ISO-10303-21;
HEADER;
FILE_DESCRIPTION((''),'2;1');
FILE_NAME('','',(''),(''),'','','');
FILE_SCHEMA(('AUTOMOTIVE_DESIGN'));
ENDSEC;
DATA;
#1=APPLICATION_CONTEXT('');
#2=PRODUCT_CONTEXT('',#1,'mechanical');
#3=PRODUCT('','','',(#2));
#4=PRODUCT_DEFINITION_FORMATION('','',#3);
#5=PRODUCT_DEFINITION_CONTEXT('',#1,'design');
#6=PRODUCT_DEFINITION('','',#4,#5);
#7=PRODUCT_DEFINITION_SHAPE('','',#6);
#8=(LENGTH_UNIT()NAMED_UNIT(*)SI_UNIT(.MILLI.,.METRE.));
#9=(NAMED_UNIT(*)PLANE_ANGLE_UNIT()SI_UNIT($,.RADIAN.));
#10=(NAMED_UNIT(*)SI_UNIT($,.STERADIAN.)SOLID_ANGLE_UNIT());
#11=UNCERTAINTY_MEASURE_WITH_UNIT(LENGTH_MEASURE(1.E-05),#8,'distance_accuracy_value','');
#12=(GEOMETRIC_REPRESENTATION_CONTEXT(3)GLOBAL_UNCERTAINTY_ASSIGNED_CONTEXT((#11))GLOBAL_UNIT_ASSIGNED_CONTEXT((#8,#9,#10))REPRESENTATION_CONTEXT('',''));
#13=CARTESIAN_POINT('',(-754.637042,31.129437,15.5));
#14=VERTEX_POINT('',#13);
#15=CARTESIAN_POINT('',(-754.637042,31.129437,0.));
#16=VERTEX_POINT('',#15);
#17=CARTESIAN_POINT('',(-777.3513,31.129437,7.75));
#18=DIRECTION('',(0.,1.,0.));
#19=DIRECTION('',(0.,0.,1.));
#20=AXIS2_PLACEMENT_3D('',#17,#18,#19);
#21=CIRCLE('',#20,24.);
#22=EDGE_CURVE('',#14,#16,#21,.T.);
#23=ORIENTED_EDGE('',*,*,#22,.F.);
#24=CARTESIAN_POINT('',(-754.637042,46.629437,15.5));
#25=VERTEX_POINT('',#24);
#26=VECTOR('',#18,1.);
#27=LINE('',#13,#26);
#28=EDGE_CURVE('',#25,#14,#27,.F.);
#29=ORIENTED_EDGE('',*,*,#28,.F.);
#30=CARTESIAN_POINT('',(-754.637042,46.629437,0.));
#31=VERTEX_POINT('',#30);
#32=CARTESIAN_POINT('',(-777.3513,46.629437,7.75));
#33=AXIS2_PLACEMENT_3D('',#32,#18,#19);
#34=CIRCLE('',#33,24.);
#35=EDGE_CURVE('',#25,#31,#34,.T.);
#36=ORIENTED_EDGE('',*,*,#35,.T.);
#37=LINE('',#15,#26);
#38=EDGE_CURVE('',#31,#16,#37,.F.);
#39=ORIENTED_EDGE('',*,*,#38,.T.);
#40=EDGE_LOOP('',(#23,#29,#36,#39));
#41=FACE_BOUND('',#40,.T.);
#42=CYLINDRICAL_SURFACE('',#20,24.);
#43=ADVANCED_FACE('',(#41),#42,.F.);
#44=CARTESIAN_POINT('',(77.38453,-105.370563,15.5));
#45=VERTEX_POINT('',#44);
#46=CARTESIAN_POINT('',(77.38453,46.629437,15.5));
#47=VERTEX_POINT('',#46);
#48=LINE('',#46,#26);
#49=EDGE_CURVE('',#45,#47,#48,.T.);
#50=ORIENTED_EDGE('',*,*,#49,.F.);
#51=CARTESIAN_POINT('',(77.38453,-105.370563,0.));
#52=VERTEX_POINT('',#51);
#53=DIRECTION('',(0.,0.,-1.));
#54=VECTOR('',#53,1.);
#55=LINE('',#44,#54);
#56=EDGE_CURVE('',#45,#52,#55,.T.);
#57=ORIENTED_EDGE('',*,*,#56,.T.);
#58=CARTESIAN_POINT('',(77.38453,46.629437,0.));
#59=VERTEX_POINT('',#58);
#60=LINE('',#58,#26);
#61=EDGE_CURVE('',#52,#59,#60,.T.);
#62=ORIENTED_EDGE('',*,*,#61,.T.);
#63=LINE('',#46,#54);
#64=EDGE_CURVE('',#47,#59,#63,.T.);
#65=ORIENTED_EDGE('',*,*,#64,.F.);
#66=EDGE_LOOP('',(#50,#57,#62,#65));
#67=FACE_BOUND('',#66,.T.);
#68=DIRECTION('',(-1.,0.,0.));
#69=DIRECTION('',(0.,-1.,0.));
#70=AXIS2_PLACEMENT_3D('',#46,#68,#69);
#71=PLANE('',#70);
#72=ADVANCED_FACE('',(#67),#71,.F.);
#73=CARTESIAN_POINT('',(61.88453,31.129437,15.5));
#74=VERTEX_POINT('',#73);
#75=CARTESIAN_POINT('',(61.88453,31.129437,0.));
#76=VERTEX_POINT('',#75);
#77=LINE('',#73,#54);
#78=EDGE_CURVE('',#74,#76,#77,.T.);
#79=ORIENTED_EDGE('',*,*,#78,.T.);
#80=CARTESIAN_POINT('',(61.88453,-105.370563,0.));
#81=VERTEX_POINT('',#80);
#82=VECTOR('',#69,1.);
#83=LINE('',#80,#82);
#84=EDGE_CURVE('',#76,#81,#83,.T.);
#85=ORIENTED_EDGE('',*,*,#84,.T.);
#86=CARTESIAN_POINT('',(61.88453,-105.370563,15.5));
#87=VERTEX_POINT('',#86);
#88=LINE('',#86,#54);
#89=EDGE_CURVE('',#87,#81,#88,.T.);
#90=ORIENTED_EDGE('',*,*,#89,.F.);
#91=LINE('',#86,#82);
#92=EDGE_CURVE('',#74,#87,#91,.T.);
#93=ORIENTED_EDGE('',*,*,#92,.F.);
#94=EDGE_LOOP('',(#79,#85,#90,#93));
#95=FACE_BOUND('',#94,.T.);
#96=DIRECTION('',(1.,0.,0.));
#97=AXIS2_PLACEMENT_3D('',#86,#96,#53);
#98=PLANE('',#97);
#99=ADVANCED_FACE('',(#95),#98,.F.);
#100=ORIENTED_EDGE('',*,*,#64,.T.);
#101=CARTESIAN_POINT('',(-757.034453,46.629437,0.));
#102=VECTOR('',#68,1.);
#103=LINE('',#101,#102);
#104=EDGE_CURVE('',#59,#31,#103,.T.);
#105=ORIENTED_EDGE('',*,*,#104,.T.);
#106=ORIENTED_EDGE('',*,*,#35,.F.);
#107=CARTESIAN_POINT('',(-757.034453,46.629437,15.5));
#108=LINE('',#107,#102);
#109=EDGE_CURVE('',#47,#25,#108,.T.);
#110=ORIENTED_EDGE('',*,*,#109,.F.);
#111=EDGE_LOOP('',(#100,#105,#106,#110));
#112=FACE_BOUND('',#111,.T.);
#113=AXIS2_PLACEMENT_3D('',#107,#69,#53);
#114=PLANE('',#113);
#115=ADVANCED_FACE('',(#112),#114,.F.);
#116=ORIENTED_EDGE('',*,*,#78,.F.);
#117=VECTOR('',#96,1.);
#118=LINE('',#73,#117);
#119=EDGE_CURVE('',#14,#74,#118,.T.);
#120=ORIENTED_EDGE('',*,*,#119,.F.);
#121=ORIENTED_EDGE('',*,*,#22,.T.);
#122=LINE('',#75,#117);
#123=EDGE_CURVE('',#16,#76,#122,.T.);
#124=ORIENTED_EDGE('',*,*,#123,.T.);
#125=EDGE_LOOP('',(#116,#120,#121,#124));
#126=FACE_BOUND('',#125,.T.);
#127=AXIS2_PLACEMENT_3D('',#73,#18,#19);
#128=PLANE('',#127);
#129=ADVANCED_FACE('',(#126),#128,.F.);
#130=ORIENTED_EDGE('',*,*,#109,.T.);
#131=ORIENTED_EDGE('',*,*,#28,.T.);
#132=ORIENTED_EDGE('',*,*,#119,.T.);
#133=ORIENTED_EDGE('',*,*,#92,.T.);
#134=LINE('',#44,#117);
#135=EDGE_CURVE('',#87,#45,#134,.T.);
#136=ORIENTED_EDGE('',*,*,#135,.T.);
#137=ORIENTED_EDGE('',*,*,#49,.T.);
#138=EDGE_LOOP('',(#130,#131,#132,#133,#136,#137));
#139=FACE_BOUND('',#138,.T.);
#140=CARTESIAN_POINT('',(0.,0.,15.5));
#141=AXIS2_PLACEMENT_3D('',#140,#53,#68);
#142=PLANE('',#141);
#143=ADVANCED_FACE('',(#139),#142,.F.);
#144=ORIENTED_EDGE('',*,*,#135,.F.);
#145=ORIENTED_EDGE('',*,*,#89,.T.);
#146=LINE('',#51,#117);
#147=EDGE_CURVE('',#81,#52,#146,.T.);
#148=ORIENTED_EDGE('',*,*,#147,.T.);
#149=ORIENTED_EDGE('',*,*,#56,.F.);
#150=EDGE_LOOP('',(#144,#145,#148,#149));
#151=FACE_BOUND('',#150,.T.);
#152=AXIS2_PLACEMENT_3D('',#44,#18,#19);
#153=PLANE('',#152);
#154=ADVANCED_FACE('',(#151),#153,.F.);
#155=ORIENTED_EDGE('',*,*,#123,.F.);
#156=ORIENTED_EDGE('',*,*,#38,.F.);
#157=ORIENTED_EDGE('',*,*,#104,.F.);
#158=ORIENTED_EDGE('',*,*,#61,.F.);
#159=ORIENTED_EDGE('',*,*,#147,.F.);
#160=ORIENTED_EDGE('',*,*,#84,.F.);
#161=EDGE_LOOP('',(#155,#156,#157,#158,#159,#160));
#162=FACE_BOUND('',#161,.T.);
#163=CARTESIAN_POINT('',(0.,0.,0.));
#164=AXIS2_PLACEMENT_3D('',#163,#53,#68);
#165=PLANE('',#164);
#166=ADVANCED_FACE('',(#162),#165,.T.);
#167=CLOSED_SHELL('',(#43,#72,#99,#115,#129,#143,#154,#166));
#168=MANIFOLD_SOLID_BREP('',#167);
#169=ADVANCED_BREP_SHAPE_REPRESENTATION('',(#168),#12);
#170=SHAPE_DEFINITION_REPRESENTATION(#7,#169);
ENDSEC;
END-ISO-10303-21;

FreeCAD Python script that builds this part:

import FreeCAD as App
import Part
import Sketcher
from FreeCAD import Vector
Q = App.Units.Quantity


def add_polygon(sketch, points):
    """Adds a closed chain of lines whose ends are joined by coincident constraints."""
    first, n = sketch.GeometryCount, len(points)
    for a, b in zip(points, points[1:] + points[:1]):
        sketch.addGeometry(Part.LineSegment(App.Vector(*a, 0), App.Vector(*b, 0)), False)
    for i in range(n):
        sketch.addConstraint(Sketcher.Constraint("Coincident", first + i, 2, first + (i + 1) % n, 1))

doc = App.newDocument("Part")
body = doc.addObject("PartDesign::Body", "Body")

sketch1 = body.newObject("Sketcher::SketchObject", "Sketch")
sketch1.AttachmentSupport = (doc.getObject("XY_Plane"), [""])
sketch1.MapMode = "FlatFace"
add_polygon(sketch1, [(61.88453, -105.370563), (77.38453, -105.370563), (77.38453, 46.629437), (-757.034453, 46.629437), (-757.034453, 31.129437), (61.88453, 31.129437)])
sketch1.addConstraint([
    Sketcher.Constraint("Horizontal", 0),
    Sketcher.Constraint("Vertical", 1),
    Sketcher.Constraint("Horizontal", 2),
    Sketcher.Constraint("Vertical", 3),
    Sketcher.Constraint("Horizontal", 4),
    Sketcher.Constraint("Vertical", 5),
    Sketcher.Constraint("Equal", 0, 3),
    Sketcher.Constraint("DistanceY", 1, 1, 1, 2, Q("152 mm")),
    Sketcher.Constraint("DistanceX", 0, 1, 0, 2, Q("15.5 mm")),
    Sketcher.Constraint("DistanceX", 2, 2, 2, 1, Q("834.418983 mm")),
    Sketcher.Constraint("DistanceX", -1, 1, 0, 2, Q("77.38453 mm")),
    Sketcher.Constraint("DistanceY", 0, 2, -1, 1, Q("105.370563 mm")),
])
pad1 = body.newObject("PartDesign::Pad", "Pad")
pad1.Profile = sketch1
pad1.Length = 15.5

sketch2 = body.newObject("Sketcher::SketchObject", "Sketch001")
sketch2.AttachmentSupport = (doc.getObject("XZ_Plane"), [""])
sketch2.MapMode = "FlatFace"
sketch2.AttachmentOffset = App.Placement(Vector(0, 0, -46.629437), App.Rotation())
sketch2.addGeometry(Part.Circle(Vector(-777.3513, 7.75, 0), Vector(0, 0, 1), 24), False)
sketch2.addConstraint([
    Sketcher.Constraint("Diameter", 0, Q("48 mm")),
    Sketcher.Constraint("DistanceY", -1, 1, 0, 3, Q("7.75 mm")),
    Sketcher.Constraint("DistanceX", 0, 3, -1, 1, Q("777.3513 mm")),
])
pocket1 = body.newObject("PartDesign::Pocket", "Pocket")
pocket1.Profile = sketch2
pocket1.Length = 15.5
pocket1.Reversed = True

doc.recompute()
